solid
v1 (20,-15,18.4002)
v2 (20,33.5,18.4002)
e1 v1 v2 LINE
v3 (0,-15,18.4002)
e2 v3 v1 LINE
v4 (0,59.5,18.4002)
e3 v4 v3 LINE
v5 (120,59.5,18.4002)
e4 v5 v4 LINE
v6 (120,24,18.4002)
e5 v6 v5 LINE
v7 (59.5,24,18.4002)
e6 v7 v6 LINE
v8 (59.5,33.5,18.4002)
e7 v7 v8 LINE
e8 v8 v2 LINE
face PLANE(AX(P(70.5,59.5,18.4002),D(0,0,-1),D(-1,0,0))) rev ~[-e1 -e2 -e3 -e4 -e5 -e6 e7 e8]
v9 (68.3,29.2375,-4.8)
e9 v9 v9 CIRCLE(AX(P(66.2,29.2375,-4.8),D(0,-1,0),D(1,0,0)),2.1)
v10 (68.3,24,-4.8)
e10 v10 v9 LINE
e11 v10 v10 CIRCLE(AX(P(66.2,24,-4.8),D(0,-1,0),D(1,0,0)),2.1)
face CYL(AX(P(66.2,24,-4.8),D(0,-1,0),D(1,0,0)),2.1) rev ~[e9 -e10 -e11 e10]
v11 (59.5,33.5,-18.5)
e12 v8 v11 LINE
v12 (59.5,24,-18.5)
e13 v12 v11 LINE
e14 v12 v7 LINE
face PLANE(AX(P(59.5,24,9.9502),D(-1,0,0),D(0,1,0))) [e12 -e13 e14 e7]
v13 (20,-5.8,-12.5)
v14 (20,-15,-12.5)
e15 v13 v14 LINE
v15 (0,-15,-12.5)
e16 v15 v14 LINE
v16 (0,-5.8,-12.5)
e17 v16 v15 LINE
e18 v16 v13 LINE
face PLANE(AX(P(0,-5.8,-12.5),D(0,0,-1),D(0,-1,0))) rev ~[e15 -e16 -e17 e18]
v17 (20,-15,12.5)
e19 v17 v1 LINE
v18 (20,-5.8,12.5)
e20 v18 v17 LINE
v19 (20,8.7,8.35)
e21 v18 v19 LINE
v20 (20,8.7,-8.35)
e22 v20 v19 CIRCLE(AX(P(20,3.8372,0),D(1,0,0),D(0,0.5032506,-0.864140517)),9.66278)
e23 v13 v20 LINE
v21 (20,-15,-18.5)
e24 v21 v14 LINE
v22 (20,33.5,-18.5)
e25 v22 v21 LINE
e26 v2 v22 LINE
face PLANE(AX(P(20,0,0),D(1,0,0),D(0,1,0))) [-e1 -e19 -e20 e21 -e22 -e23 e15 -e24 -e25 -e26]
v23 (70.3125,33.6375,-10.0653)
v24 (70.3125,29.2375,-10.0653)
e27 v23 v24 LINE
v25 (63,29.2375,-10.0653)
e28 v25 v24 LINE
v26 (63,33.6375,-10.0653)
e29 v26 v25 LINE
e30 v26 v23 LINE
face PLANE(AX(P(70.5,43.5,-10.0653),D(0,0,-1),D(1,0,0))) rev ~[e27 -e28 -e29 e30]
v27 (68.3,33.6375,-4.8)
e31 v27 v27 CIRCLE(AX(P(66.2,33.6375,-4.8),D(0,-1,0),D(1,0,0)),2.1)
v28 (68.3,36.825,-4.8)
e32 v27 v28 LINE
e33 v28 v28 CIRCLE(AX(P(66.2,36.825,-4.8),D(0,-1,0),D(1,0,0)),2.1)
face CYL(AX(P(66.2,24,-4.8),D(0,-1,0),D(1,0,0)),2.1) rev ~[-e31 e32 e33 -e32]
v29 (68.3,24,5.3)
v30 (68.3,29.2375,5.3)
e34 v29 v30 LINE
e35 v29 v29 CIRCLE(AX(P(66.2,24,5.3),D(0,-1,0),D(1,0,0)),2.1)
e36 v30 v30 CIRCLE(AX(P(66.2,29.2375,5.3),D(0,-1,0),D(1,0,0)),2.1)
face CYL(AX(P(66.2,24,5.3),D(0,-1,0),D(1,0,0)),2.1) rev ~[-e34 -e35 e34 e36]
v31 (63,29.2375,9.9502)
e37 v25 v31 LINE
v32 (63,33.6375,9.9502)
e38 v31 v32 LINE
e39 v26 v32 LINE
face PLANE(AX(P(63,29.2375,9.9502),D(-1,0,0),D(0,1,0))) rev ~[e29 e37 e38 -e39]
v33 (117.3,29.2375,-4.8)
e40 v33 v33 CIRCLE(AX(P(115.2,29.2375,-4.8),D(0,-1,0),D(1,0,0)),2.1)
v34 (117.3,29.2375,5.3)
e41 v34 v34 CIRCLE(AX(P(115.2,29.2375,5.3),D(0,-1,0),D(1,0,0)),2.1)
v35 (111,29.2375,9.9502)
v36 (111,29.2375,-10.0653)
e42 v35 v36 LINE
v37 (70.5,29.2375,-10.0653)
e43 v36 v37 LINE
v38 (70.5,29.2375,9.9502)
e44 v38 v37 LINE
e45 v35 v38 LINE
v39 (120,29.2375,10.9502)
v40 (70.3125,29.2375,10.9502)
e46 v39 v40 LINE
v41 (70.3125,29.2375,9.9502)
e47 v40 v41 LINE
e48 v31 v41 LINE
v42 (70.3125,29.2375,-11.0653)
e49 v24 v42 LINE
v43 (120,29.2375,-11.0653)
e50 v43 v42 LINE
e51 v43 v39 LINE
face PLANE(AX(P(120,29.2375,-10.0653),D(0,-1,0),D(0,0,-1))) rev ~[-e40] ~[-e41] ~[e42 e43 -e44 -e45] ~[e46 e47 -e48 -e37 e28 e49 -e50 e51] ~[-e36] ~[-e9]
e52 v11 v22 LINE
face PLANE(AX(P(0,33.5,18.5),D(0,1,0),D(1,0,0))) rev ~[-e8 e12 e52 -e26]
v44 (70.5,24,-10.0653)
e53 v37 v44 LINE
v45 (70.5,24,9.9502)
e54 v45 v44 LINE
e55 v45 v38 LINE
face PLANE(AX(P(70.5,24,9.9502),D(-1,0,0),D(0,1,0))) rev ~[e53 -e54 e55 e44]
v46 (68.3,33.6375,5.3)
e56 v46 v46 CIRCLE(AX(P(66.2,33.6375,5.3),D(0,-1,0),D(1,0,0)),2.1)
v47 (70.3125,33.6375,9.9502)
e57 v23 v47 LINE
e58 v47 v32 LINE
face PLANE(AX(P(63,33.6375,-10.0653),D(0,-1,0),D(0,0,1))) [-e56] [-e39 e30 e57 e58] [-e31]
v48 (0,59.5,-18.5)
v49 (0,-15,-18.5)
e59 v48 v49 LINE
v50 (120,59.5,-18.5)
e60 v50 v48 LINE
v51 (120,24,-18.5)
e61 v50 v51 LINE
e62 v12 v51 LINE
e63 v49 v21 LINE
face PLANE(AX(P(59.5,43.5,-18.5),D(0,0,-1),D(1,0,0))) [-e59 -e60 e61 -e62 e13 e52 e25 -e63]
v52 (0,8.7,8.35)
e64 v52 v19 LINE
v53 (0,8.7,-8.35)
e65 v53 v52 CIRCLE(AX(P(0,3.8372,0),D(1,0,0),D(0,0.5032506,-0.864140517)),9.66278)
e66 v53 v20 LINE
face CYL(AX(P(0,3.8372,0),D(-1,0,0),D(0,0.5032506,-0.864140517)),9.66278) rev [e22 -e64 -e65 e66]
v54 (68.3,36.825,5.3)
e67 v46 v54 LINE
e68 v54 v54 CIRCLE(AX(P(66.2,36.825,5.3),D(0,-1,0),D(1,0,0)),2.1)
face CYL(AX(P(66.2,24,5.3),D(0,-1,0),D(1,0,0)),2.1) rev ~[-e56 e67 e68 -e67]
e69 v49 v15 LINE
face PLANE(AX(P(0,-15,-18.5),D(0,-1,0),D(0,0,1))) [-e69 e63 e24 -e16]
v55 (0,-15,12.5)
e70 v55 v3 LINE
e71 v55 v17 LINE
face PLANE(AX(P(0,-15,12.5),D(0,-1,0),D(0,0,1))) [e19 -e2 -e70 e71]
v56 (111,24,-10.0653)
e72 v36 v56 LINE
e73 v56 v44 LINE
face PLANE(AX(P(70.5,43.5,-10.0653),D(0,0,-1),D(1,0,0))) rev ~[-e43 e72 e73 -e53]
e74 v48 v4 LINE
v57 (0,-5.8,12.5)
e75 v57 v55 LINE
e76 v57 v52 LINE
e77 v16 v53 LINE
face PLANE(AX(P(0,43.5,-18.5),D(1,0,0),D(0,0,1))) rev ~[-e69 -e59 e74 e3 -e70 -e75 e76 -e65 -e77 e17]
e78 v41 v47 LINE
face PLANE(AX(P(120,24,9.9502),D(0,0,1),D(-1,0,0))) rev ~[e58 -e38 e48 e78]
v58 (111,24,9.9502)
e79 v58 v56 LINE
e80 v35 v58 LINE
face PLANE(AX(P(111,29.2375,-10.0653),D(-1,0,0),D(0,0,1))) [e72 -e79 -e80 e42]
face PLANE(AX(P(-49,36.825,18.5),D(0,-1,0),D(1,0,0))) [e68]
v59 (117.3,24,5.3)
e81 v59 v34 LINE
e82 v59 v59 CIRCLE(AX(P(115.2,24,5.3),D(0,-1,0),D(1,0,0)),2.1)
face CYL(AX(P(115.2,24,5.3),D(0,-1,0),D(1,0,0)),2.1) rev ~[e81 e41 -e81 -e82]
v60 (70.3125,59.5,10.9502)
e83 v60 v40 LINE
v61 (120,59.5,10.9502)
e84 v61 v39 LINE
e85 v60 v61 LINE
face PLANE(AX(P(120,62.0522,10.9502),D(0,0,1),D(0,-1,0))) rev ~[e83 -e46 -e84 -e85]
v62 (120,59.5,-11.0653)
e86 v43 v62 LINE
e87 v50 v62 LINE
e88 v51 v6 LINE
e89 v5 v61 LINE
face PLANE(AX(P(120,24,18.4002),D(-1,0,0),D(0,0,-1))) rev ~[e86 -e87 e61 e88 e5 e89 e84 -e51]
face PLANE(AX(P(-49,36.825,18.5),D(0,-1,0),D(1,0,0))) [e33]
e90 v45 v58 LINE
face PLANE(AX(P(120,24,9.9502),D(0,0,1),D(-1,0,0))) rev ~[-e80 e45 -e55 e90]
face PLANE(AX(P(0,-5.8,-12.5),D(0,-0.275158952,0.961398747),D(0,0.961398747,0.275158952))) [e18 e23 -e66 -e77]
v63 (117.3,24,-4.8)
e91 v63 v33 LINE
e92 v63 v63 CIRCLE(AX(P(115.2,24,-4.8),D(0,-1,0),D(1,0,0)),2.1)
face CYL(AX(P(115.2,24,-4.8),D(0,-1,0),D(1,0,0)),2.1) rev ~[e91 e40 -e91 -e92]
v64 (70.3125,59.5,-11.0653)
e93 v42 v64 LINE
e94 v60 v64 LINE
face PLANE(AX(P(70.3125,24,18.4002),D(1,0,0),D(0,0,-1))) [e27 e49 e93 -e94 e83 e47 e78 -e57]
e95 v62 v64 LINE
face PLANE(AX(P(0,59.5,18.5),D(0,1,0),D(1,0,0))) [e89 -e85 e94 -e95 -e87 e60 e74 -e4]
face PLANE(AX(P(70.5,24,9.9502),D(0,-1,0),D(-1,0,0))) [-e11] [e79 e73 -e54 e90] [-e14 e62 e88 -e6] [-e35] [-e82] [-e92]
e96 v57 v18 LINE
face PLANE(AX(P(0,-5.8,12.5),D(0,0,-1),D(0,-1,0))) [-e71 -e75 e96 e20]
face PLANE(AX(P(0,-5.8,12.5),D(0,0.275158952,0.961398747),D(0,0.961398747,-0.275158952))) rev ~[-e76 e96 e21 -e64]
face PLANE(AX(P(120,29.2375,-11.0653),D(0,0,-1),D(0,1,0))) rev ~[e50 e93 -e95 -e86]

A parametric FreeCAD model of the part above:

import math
import FreeCAD as App
import Part
import Sketcher
from FreeCAD import Vector

doc = App.newDocument("Part")
body = doc.addObject("PartDesign::Body", "Body")

sketch1 = body.newObject("Sketcher::SketchObject", "Sketch")
sketch1.AttachmentSupport = (doc.getObject("YZ_Plane"), [""])
sketch1.MapMode = "FlatFace"
sketch1.addGeometry([
    Part.LineSegment(Vector(-15, 12, 0), Vector(-6, 12, 0)),
    Part.LineSegment(Vector(-6, 12, 0), Vector(9, 8, 0)),
    Part.ArcOfCircle(Part.Circle(Vector(4, 0, 0), Vector(0, 0, 1), 10), math.radians(-60), math.radians(60)),
    Part.LineSegment(Vector(9, -8, 0), Vector(-6, -12, 0)),
    Part.LineSegment(Vector(-6, -12, 0), Vector(-15, -12, 0)),
    Part.LineSegment(Vector(-15, -12, 0), Vector(-15, -18, 0)),
    Part.LineSegment(Vector(-15, -18, 0), Vector(34, -18, 0)),
    Part.LineSegment(Vector(34, -18, 0), Vector(34, 18, 0)),
    Part.LineSegment(Vector(34, 18, 0), Vector(-15, 18, 0)),
    Part.LineSegment(Vector(-15, 18, 0), Vector(-15, 12, 0)),
], False)
sketch1.addConstraint([
    Sketcher.Constraint("Coincident", 0, 2, 1, 1),
    Sketcher.Constraint("Coincident", 1, 2, 2, 2),
    Sketcher.Constraint("Coincident", 2, 1, 3, 1),
    Sketcher.Constraint("Coincident", 3, 2, 4, 1),
    Sketcher.Constraint("Coincident", 4, 2, 5, 1),
    Sketcher.Constraint("Coincident", 5, 2, 6, 1),
    Sketcher.Constraint("Coincident", 6, 2, 7, 1),
    Sketcher.Constraint("Coincident", 7, 2, 8, 1),
    Sketcher.Constraint("Coincident", 8, 2, 9, 1),
    Sketcher.Constraint("Coincident", 9, 2, 0, 1),
    Sketcher.Constraint("Horizontal", 0),
    Sketcher.Constraint("Horizontal", 4),
    Sketcher.Constraint("Vertical", 5),
    Sketcher.Constraint("Horizontal", 6),
    Sketcher.Constraint("Vertical", 7),
    Sketcher.Constraint("Horizontal", 8),
    Sketcher.Constraint("Vertical", 9),
    Sketcher.Constraint("Symmetric", 1, 2, 2, 1, -1),
    Sketcher.Constraint("Symmetric", 0, 2, 3, 2, -1),
    Sketcher.Constraint("Symmetric", 5, 2, 8, 2, -1),
    Sketcher.Constraint("DistanceY", 5, 2, 5, 1, 6.0),
    Sketcher.Constraint("DistanceY", 7, 1, 7, 2, 37.0),
    Sketcher.Constraint("DistanceX", 0, 1, 0, 2, 9.2),
    Sketcher.Constraint("DistanceX", 4, 2, -1, 1, 15.0),
    Sketcher.Constraint("DistanceX", 0, 2, 1, 2, 14.5),
    Sketcher.Constraint("DistanceY", 1, 2, 0, 2, 4.15),
    Sketcher.Constraint("DistanceX", 6, 1, 6, 2, 48.5),
    Sketcher.Constraint("Radius", 2, 9.6628),
])
pad1 = body.newObject("PartDesign::Pad", "Pad")
pad1.Profile = sketch1
pad1.Length = 20

sketch2 = body.newObject("Sketcher::SketchObject", "Sketch001")
sketch2.AttachmentSupport = (doc.getObject("XZ_Plane"), [""])
sketch2.MapMode = "FlatFace"
sketch2.AttachmentOffset = App.Placement(Vector(0, 0, -33.5), App.Rotation())
sketch2.addGeometry([
    Part.LineSegment(Vector(0, -18, 0), Vector(0, 18, 0)),
    Part.LineSegment(Vector(0, 18, 0), Vector(70, 18, 0)),
    Part.LineSegment(Vector(70, 18, 0), Vector(70, -18, 0)),
    Part.LineSegment(Vector(70, -18, 0), Vector(0, -18, 0)),
], False)
sketch2.addConstraint([
    Sketcher.Constraint("Coincident", 0, 2, 1, 1),
    Sketcher.Constraint("Coincident", 1, 2, 2, 1),
    Sketcher.Constraint("Coincident", 2, 2, 3, 1),
    Sketcher.Constraint("Coincident", 3, 2, 0, 1),
    Sketcher.Constraint("Vertical", 0),
    Sketcher.Constraint("Horizontal", 1),
    Sketcher.Constraint("Vertical", 2),
    Sketcher.Constraint("Horizontal", 3),
    Sketcher.Constraint("PointOnObject", 0, 2, -2),
    Sketcher.Constraint("DistanceX", 1, 1, 1, 2, 70.5),
    Sketcher.Constraint("DistanceY", 2, 2, -1, 1, 18.5),
    Sketcher.Constraint("DistanceY", 0, 1, 0, 2, 36.9005),
])
pad2 = body.newObject("PartDesign::Pad", "Pad001")
pad2.Profile = sketch2
pad2.Length = 10
pad2.Reversed = True

sketch3 = body.newObject("Sketcher::SketchObject", "Sketch002")
sketch3.AttachmentSupport = (doc.getObject("XZ_Plane"), [""])
sketch3.MapMode = "FlatFace"
sketch3.AttachmentOffset = App.Placement(Vector(0, 0, -33.5), App.Rotation())
sketch3.addGeometry([
    Part.LineSegment(Vector(120, 10, 0), Vector(111, 10, 0)),
    Part.LineSegment(Vector(111, 10, 0), Vector(111, -10, 0)),
    Part.LineSegment(Vector(111, -10, 0), Vector(70, -10, 0)),
    Part.LineSegment(Vector(70, -10, 0), Vector(70, 10, 0)),
    Part.LineSegment(Vector(70, 10, 0), Vector(60, 10, 0)),
    Part.LineSegment(Vector(60, 10, 0), Vector(60, -18, 0)),
    Part.LineSegment(Vector(60, -18, 0), Vector(120, -18, 0)),
    Part.LineSegment(Vector(120, -18, 0), Vector(120, 10, 0)),
], False)
sketch3.addConstraint([
    Sketcher.Constraint("Coincident", 0, 2, 1, 1),
    Sketcher.Constraint("Coincident", 1, 2, 2, 1),
    Sketcher.Constraint("Coincident", 2, 2, 3, 1),
    Sketcher.Constraint("Coincident", 3, 2, 4, 1),
    Sketcher.Constraint("Coincident", 4, 2, 5, 1),
    Sketcher.Constraint("Coincident", 5, 2, 6, 1),
    Sketcher.Constraint("Coincident", 6, 2, 7, 1),
    Sketcher.Constraint("Coincident", 7, 2, 0, 1),
    Sketcher.Constraint("Horizontal", 0),
    Sketcher.Constraint("Vertical", 1),
    Sketcher.Constraint("Horizontal", 2),
    Sketcher.Constraint("Vertical", 3),
    Sketcher.Constraint("Horizontal", 4),
    Sketcher.Constraint("Vertical", 5),
    Sketcher.Constraint("Horizontal", 6),
    Sketcher.Constraint("Vertical", 7),
    Sketcher.Constraint("Horizontal", 0, 2, 3, 2),
    Sketcher.Constraint("DistanceX", 0, 2, 0, 1, 9.0),
    Sketcher.Constraint("DistanceX", 4, 2, 4, 1, 11.0),
    Sketcher.Constraint("DistanceY", 1, 2, 1, 1, 20.0),
    Sketcher.Constraint("DistanceX", 2, 2, 2, 1, 40.5),
    Sketcher.Constraint("DistanceX", -1, 1, 0, 2, 111.0),
    Sketcher.Constraint("DistanceY", 5, 2, -1, 1, 18.5),
    Sketcher.Constraint("DistanceY", 5, 2, 5, 1, 28.4502),
])
pad3 = body.newObject("PartDesign::Pad", "Pad002")
pad3.Profile = sketch3
pad3.Type = "TwoLengths"
pad3.Length = 9.5
pad3.Length2 = 10

sketch4 = body.newObject("Sketcher::SketchObject", "Sketch003")
sketch4.AttachmentSupport = (doc.getObject("XZ_Plane"), [""])
sketch4.MapMode = "FlatFace"
sketch4.AttachmentOffset = App.Placement(Vector(0, 0, -43.5), App.Rotation())
sketch4.addGeometry([
    Part.LineSegment(Vector(63, 10, 0), Vector(120, 10, 0)),
    Part.LineSegment(Vector(120, 10, 0), Vector(120, -10, 0)),
    Part.LineSegment(Vector(120, -10, 0), Vector(63, -10, 0)),
    Part.LineSegment(Vector(63, -10, 0), Vector(63, 10, 0)),
], False)
sketch4.addConstraint([
    Sketcher.Constraint("Coincident", 0, 2, 1, 1),
    Sketcher.Constraint("Coincident", 1, 2, 2, 1),
    Sketcher.Constraint("Coincident", 2, 2, 3, 1),
    Sketcher.Constraint("Coincident", 3, 2, 0, 1),
    Sketcher.Constraint("Horizontal", 0),
    Sketcher.Constraint("Vertical", 1),
    Sketcher.Constraint("Horizontal", 2),
    Sketcher.Constraint("Vertical", 3),
    Sketcher.Constraint("DistanceX", 0, 1, 0, 2, 57.0),
    Sketcher.Constraint("DistanceX", -1, 1, 0, 2, 120.0),
    Sketcher.Constraint("DistanceY", 1, 2, 1, 1, 20.0155),
    Sketcher.Constraint("DistanceY", -1, 1, 0, 2, 9.9502),
])
pocket1 = body.newObject("PartDesign::Pocket", "Pocket")
pocket1.Profile = sketch4
pocket1.Length = 14.2625
pocket1.Reversed = True

sketch5 = body.newObject("Sketcher::SketchObject", "Sketch004")
sketch5.AttachmentSupport = (doc.getObject("XZ_Plane"), [""])
sketch5.MapMode = "FlatFace"
sketch5.AttachmentOffset = App.Placement(Vector(0, 0, -43.5), App.Rotation())
sketch5.addGeometry([
    Part.LineSegment(Vector(70, 10, 0), Vector(63, 10, 0)),
    Part.LineSegment(Vector(63, 10, 0), Vector(63, 20, 0)),
    Part.LineSegment(Vector(63, 20, 0), Vector(70, 20, 0)),
    Part.LineSegment(Vector(70, 20, 0), Vector(70, 10, 0)),
], False)
sketch5.addConstraint([
    Sketcher.Constraint("Coincident", 0, 2, 1, 1),
    Sketcher.Constraint("Coincident", 1, 2, 2, 1),
    Sketcher.Constraint("Coincident", 2, 2, 3, 1),
    Sketcher.Constraint("Coincident", 3, 2, 0, 1),
    Sketcher.Constraint("Horizontal", 0),
    Sketcher.Constraint("Vertical", 1),
    Sketcher.Constraint("Horizontal", 2),
    Sketcher.Constraint("Vertical", 3),
    Sketcher.Constraint("DistanceX", 0, 2, 0, 1, 7.5),
    Sketcher.Constraint("DistanceX", -1, 1, 0, 2, 63.0),
    Sketcher.Constraint("DistanceY", 1, 1, 1, 2, 9.5666),
    Sketcher.Constraint("DistanceY", -1, 1, 0, 2, 9.9502),
])
pocket2 = body.newObject("PartDesign::Pocket", "Pocket001")
pocket2.Profile = sketch5
pocket2.Length = 14.2625
pocket2.Reversed = True

sketch6 = body.newObject("Sketcher::SketchObject", "Sketch005")
sketch6.AttachmentSupport = (doc.getObject("XY_Plane"), [""])
sketch6.MapMode = "FlatFace"
sketch6.AttachmentOffset = App.Placement(Vector(0, 0, 9.9502), App.Rotation())
sketch6.addGeometry([
    Part.LineSegment(Vector(70.5, 29.2, 0), Vector(63, 29.2, 0)),
    Part.LineSegment(Vector(63, 29.2, 0), Vector(63, 33.5, 0)),
    Part.LineSegment(Vector(63, 33.5, 0), Vector(59.5, 33.5, 0)),
    Part.LineSegment(Vector(59.5, 33.5, 0), Vector(59.5, 24, 0)),
    Part.LineSegment(Vector(59.5, 24, 0), Vector(70.5, 24, 0)),
    Part.LineSegment(Vector(70.5, 24, 0), Vector(70.5, 29.2, 0)),
], False)
sketch6.addConstraint([
    Sketcher.Constraint("Coincident", 0, 2, 1, 1),
    Sketcher.Constraint("Coincident", 1, 2, 2, 1),
    Sketcher.Constraint("Coincident", 2, 2, 3, 1),
    Sketcher.Constraint("Coincident", 3, 2, 4, 1),
    Sketcher.Constraint("Coincident", 4, 2, 5, 1),
    Sketcher.Constraint("Coincident", 5, 2, 0, 1),
    Sketcher.Constraint("Horizontal", 0),
    Sketcher.Constraint("Vertical", 1),
    Sketcher.Constraint("Horizontal", 2),
    Sketcher.Constraint("Vertical", 3),
    Sketcher.Constraint("Horizontal", 4),
    Sketcher.Constraint("Vertical", 5),
    Sketcher.Constraint("DistanceX", 4, 1, 4, 2, 11.0),
    Sketcher.Constraint("DistanceX", 0, 2, 0, 1, 7.5),
    Sketcher.Constraint("DistanceY", 3, 2, 3, 1, 9.5),
    Sketcher.Constraint("DistanceX", -1, 1, 0, 2, 63.0),
    Sketcher.Constraint("DistanceY", -1, 1, 3, 2, 24.0),
    Sketcher.Constraint("DistanceY", 1, 1, 1, 2, 4.2625),
])
pad4 = body.newObject("PartDesign::Pad", "Pad003")
pad4.Profile = sketch6
pad4.Length = 8.45

sketch7 = body.newObject("Sketcher::SketchObject", "Sketch006")
sketch7.AttachmentSupport = (doc.getObject("YZ_Plane"), [""])
sketch7.MapMode = "FlatFace"
sketch7.AttachmentOffset = App.Placement(Vector(0, 0, 63), App.Rotation())
sketch7.addGeometry([
    Part.LineSegment(Vector(34, -10, 0), Vector(44, -10, 0)),
    Part.LineSegment(Vector(44, -10, 0), Vector(44, 18, 0)),
    Part.LineSegment(Vector(44, 18, 0), Vector(34, 18, 0)),
    Part.LineSegment(Vector(34, 18, 0), Vector(34, -10, 0)),
], False)
sketch7.addConstraint([
    Sketcher.Constraint("Coincident", 0, 2, 1, 1),
    Sketcher.Constraint("Coincident", 1, 2, 2, 1),
    Sketcher.Constraint("Coincident", 2, 2, 3, 1),
    Sketcher.Constraint("Coincident", 3, 2, 0, 1),
    Sketcher.Constraint("Horizontal", 0),
    Sketcher.Constraint("Vertical", 1),
    Sketcher.Constraint("Horizontal", 2),
    Sketcher.Constraint("Vertical", 3),
    Sketcher.Constraint("DistanceX", -1, 1, 0, 2, 43.5),
    Sketcher.Constraint("DistanceX", 0, 1, 0, 2, 9.8625),
    Sketcher.Constraint("DistanceY", 1, 1, 1, 2, 28.4658),
    Sketcher.Constraint("DistanceY", 0, 2, -1, 1, 10.0653),
])
pad5 = body.newObject("PartDesign::Pad", "Pad004")
pad5.Profile = sketch7
pad5.Length = 7.5

sketch8 = body.newObject("Sketcher::SketchObject", "Sketch007")
sketch8.AttachmentSupport = (doc.getObject("XZ_Plane"), [""])
sketch8.MapMode = "FlatFace"
sketch8.AttachmentOffset = App.Placement(Vector(0, 0, -43.5), App.Rotation())
sketch8.addGeometry([
    Part.LineSegment(Vector(120, -18, 0), Vector(60, -18, 0)),
    Part.LineSegment(Vector(60, -18, 0), Vector(60, 18, 0)),
    Part.LineSegment(Vector(60, 18, 0), Vector(70, 18, 0)),
    Part.LineSegment(Vector(70, 18, 0), Vector(70, -10, 0)),
    Part.LineSegment(Vector(70, -10, 0), Vector(120, -10, 0)),
    Part.LineSegment(Vector(120, -10, 0), Vector(120, -18, 0)),
], False)
sketch8.addConstraint([
    Sketcher.Constraint("Coincident", 0, 2, 1, 1),
    Sketcher.Constraint("Coincident", 1, 2, 2, 1),
    Sketcher.Constraint("Coincident", 2, 2, 3, 1),
    Sketcher.Constraint("Coincident", 3, 2, 4, 1),
    Sketcher.Constraint("Coincident", 4, 2, 5, 1),
    Sketcher.Constraint("Coincident", 5, 2, 0, 1),
    Sketcher.Constraint("Horizontal", 0),
    Sketcher.Constraint("Vertical", 1),
    Sketcher.Constraint("Horizontal", 2),
    Sketcher.Constraint("Vertical", 3),
    Sketcher.Constraint("Horizontal", 4),
    Sketcher.Constraint("Vertical", 5),
    Sketcher.Constraint("DistanceX", 2, 1, 2, 2, 11.0),
    Sketcher.Constraint("DistanceX", 0, 2, 0, 1, 60.5),
    Sketcher.Constraint("DistanceX", -1, 1, 4, 2, 120.0),
    Sketcher.Constraint("DistanceY", 0, 2, -1, 1, 18.5),
    Sketcher.Constraint("DistanceY", 1, 1, 1, 2, 36.9002),
    Sketcher.Constraint("DistanceY", 3, 2, 3, 1, 28.4658),
])
pad6 = body.newObject("PartDesign::Pad", "Pad005")
pad6.Profile = sketch8
pad6.Length = 16
pad6.Reversed = True

sketch9 = body.newObject("Sketcher::SketchObject", "Sketch008")
sketch9.AttachmentSupport = (doc.getObject("XZ_Plane"), [""])
sketch9.MapMode = "FlatFace"
sketch9.AttachmentOffset = App.Placement(Vector(0, 0, -43.5), App.Rotation())
sketch9.addGeometry([
    Part.LineSegment(Vector(0, 18, 0), Vector(60, 18, 0)),
    Part.LineSegment(Vector(60, 18, 0), Vector(60, -18, 0)),
    Part.LineSegment(Vector(60, -18, 0), Vector(0, -18, 0)),
    Part.LineSegment(Vector(0, -18, 0), Vector(0, 18, 0)),
], False)
sketch9.addConstraint([
    Sketcher.Constraint("Coincident", 0, 2, 1, 1),
    Sketcher.Constraint("Coincident", 1, 2, 2, 1),
    Sketcher.Constraint("Coincident", 2, 2, 3, 1),
    Sketcher.Constraint("Coincident", 3, 2, 0, 1),
    Sketcher.Constraint("Horizontal", 0),
    Sketcher.Constraint("Vertical", 1),
    Sketcher.Constraint("Horizontal", 2),
    Sketcher.Constraint("Vertical", 3),
    Sketcher.Constraint("PointOnObject", 2, 2, -2),
    Sketcher.Constraint("DistanceX", 0, 1, 0, 2, 59.5),
    Sketcher.Constraint("DistanceY", 1, 2, -1, 1, 18.5),
    Sketcher.Constraint("DistanceY", 1, 2, 1, 1, 36.9002),
])
pad7 = body.newObject("PartDesign::Pad", "Pad006")
pad7.Profile = sketch9
pad7.Length = 16
pad7.Reversed = True

sketch10 = body.newObject("Sketcher::SketchObject", "Sketch009")
sketch10.AttachmentSupport = (doc.getObject("XZ_Plane"), [""])
sketch10.MapMode = "FlatFace"
sketch10.AttachmentOffset = App.Placement(Vector(0, 0, -59.5), App.Rotation())
sketch10.addGeometry([
    Part.LineSegment(Vector(70, 35, 0), Vector(70, 18, 0)),
    Part.LineSegment(Vector(70, 18, 0), Vector(0, 18, 0)),
    Part.LineSegment(Vector(0, 18, 0), Vector(0, 35, 0)),
    Part.LineSegment(Vector(0, 35, 0), Vector(70, 35, 0)),
], False)
sketch10.addConstraint([
    Sketcher.Constraint("Coincident", 0, 2, 1, 1),
    Sketcher.Constraint("Coincident", 1, 2, 2, 1),
    Sketcher.Constraint("Coincident", 2, 2, 3, 1),
    Sketcher.Constraint("Coincident", 3, 2, 0, 1),
    Sketcher.Constraint("Vertical", 0),
    Sketcher.Constraint("Horizontal", 1),
    Sketcher.Constraint("Vertical", 2),
    Sketcher.Constraint("Horizontal", 3),
    Sketcher.Constraint("PointOnObject", 1, 2, -2),
    Sketcher.Constraint("DistanceX", 1, 2, 1, 1, 70.5),
    Sketcher.Constraint("DistanceY", 0, 2, 0, 1, 16.7846),
    Sketcher.Constraint("DistanceY", -1, 1, 0, 2, 18.4002),
])
pocket3 = body.newObject("PartDesign::Pocket", "Pocket002")
pocket3.Profile = sketch10
pocket3.Length = 76.325
pocket3.Reversed = True

sketch11 = body.newObject("Sketcher::SketchObject", "Sketch010")
sketch11.AttachmentSupport = (doc.getObject("XZ_Plane"), [""])
sketch11.MapMode = "FlatFace"
sketch11.AttachmentOffset = App.Placement(Vector(0, 0, -29.2375), App.Rotation())
sketch11.addGeometry([
    Part.LineSegment(Vector(70.5, -10.065, 0), Vector(70.5, -10.05, 0)),
    Part.LineSegment(Vector(70.5, -10.05, 0), Vector(111, -10.05, 0)),
    Part.LineSegment(Vector(111, -10.05, 0), Vector(111, -10.065, 0)),
    Part.LineSegment(Vector(111, -10.065, 0), Vector(70.5, -10.065, 0)),
], False)
sketch11.addConstraint([
    Sketcher.Constraint("Coincident", 0, 2, 1, 1),
    Sketcher.Constraint("Coincident", 1, 2, 2, 1),
    Sketcher.Constraint("Coincident", 2, 2, 3, 1),
    Sketcher.Constraint("Coincident", 3, 2, 0, 1),
    Sketcher.Constraint("Vertical", 0),
    Sketcher.Constraint("Horizontal", 1),
    Sketcher.Constraint("Vertical", 2),
    Sketcher.Constraint("Horizontal", 3),
    Sketcher.Constraint("DistanceX", 1, 1, 1, 2, 40.5),
    Sketcher.Constraint("DistanceX", -1, 1, 1, 2, 111.0),
    Sketcher.Constraint("DistanceY", 0, 1, 0, 2, 0.0155),
    Sketcher.Constraint("DistanceY", 0, 2, -1, 1, 10.0498),
])
pocket4 = body.newObject("PartDesign::Pocket", "Pocket003")
pocket4.Profile = sketch11
pocket4.Length = 76.325
pocket4.Reversed = True

sketch12 = body.newObject("Sketcher::SketchObject", "Sketch011")
sketch12.AttachmentSupport = (doc.getObject("XZ_Plane"), [""])
sketch12.MapMode = "FlatFace"
sketch12.AttachmentOffset = App.Placement(Vector(0, 0, -24), App.Rotation())
sketch12.addGeometry([
    Part.Circle(Vector(115.2, -4.8, 0), Vector(0, 0, 1), 2.1),
    Part.Circle(Vector(115.2, 5.3, 0), Vector(0, 0, 1), 2.1),
], False)
sketch12.addConstraint([
    Sketcher.Constraint("Equal", 0, 1),
    Sketcher.Constraint("Vertical", 0, 3, 1, 3),
    Sketcher.Constraint("Diameter", 0, 4.2),
    Sketcher.Constraint("DistanceY", 0, 3, -1, 1, 4.8),
    Sketcher.Constraint("DistanceY", 0, 3, 1, 3, 10.1),
    Sketcher.Constraint("DistanceX", -1, 1, 0, 3, 115.2),
])
pocket5 = body.newObject("PartDesign::Pocket", "Pocket004")
pocket5.Profile = sketch12
pocket5.Length = 12.825
doc.recompute()

linearpattern = body.newObject("PartDesign::LinearPattern", "LinearPattern")
linearpattern.Originals = [pocket5]
linearpattern.Direction = (doc.getObject("X_Axis"), [""])
linearpattern.Mode = "offset"
linearpattern.Offset = 49
linearpattern.Occurrences = 2
linearpattern.Reversed = True
body.Tip = linearpattern

sketch13 = body.newObject("Sketcher::SketchObject", "Sketch012")
sketch13.AttachmentSupport = (doc.getObject("XZ_Plane"), [""])
sketch13.MapMode = "FlatFace"
sketch13.AttachmentOffset = App.Placement(Vector(0, 0, -24), App.Rotation())
sketch13.addGeometry([
    Part.LineSegment(Vector(120, 18, 0), Vector(60, 18, 0)),
    Part.LineSegment(Vector(60, 18, 0), Vector(60, 10, 0)),
    Part.LineSegment(Vector(60, 10, 0), Vector(120, 10, 0)),
    Part.LineSegment(Vector(120, 10, 0), Vector(120, 18, 0)),
], False)
sketch13.addConstraint([
    Sketcher.Constraint("Coincident", 0, 2, 1, 1),
    Sketcher.Constraint("Coincident", 1, 2, 2, 1),
    Sketcher.Constraint("Coincident", 2, 2, 3, 1),
    Sketcher.Constraint("Coincident", 3, 2, 0, 1),
    Sketcher.Constraint("Horizontal", 0),
    Sketcher.Constraint("Vertical", 1),
    Sketcher.Constraint("Horizontal", 2),
    Sketcher.Constraint("Vertical", 3),
    Sketcher.Constraint("DistanceX", 0, 2, 0, 1, 60.5),
    Sketcher.Constraint("DistanceX", -1, 1, 2, 2, 120.0),
    Sketcher.Constraint("DistanceY", 1, 2, 1, 1, 8.45),
    Sketcher.Constraint("DistanceY", -1, 1, 0, 2, 18.4002),
])
pad8 = body.newObject("PartDesign::Pad", "Pad007")
pad8.Profile = sketch13
pad8.Length = 35.5
pad8.Reversed = True

sketch14 = body.newObject("Sketcher::SketchObject", "Sketch013")
sketch14.AttachmentSupport = (doc.getObject("YZ_Plane"), [""])
sketch14.MapMode = "FlatFace"
sketch14.AttachmentOffset = App.Placement(Vector(0, 0, 120), App.Rotation())
sketch14.addGeometry([
    Part.LineSegment(Vector(62, 11, 0), Vector(29, 11, 0)),
    Part.LineSegment(Vector(29, 11, 0), Vector(29, -11, 0)),
    Part.LineSegment(Vector(29, -11, 0), Vector(62, -11, 0)),
    Part.LineSegment(Vector(62, -11, 0), Vector(62, 11, 0)),
], False)
sketch14.addConstraint([
    Sketcher.Constraint("Coincident", 0, 2, 1, 1),
    Sketcher.Constraint("Coincident", 1, 2, 2, 1),
    Sketcher.Constraint("Coincident", 2, 2, 3, 1),
    Sketcher.Constraint("Coincident", 3, 2, 0, 1),
    Sketcher.Constraint("Horizontal", 0),
    Sketcher.Constraint("Vertical", 1),
    Sketcher.Constraint("Horizontal", 2),
    Sketcher.Constraint("Vertical", 3),
    Sketcher.Constraint("DistanceX", 0, 2, 0, 1, 32.8147),
    Sketcher.Constraint("DistanceY", 1, 2, 1, 1, 22.0155),
    Sketcher.Constraint("DistanceX", -1, 1, 0, 2, 29.2375),
    Sketcher.Constraint("DistanceY", -1, 1, 0, 2, 10.9502),
])
pocket6 = body.newObject("PartDesign::Pocket", "Pocket005")
pocket6.Profile = sketch14
pocket6.Length = 49.6875

doc.recompute()
